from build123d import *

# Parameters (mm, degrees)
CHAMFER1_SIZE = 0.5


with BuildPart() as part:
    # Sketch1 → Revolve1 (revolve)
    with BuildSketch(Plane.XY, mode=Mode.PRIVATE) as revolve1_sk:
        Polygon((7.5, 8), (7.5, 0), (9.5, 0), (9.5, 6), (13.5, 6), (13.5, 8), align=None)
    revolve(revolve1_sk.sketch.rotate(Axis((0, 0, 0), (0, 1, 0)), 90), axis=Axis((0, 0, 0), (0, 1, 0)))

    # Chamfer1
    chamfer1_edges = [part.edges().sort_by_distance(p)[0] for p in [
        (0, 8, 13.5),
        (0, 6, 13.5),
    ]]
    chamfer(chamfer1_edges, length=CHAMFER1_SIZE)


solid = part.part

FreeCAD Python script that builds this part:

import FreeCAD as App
import Part
import Sketcher
Q = App.Units.Quantity


def edges_at(feature, points):
    """Names of the edges that pass closest to the given points."""
    edges = feature.Shape.Edges
    near = lambda p: min(range(len(edges)), key=lambda i: edges[i].distToShape(Part.Vertex(*p))[0])
    return sorted({f"Edge{near(p) + 1}" for p in points})

doc = App.newDocument("Part")
body = doc.addObject("PartDesign::Body", "Body")

# Sketch on XY plane
sketch1 = body.newObject("Sketcher::SketchObject", "Sketch")
sketch1.AttachmentSupport = (doc.getObject("XY_Plane"), [""])
sketch1.MapMode = "FlatFace"
sketch1.addGeometry([
    Part.LineSegment(App.Vector(7.5, 8, 0), App.Vector(7.5, 0, 0)),  # 0
    Part.LineSegment(App.Vector(7.5, 0, 0), App.Vector(9.5, 0, 0)),  # 1
    Part.LineSegment(App.Vector(9.5, 0, 0), App.Vector(9.5, 6, 0)),  # 2
    Part.LineSegment(App.Vector(9.5, 6, 0), App.Vector(13.5, 6, 0)),  # 3
    Part.LineSegment(App.Vector(13.5, 6, 0), App.Vector(13.5, 8, 0)),  # 4
    Part.LineSegment(App.Vector(13.5, 8, 0), App.Vector(7.5, 8, 0)),  # 5
], False)
sketch1.addConstraint([
    Sketcher.Constraint("Coincident", 0, 2, 1, 1),
    Sketcher.Constraint("Coincident", 1, 2, 2, 1),
    Sketcher.Constraint("Coincident", 2, 2, 3, 1),
    Sketcher.Constraint("Coincident", 3, 2, 4, 1),
    Sketcher.Constraint("Coincident", 4, 2, 5, 1),
    Sketcher.Constraint("Coincident", 5, 2, 0, 1),
    Sketcher.Constraint("Vertical", 0),
    Sketcher.Constraint("Horizontal", 1),
    Sketcher.Constraint("Vertical", 2),
    Sketcher.Constraint("Horizontal", 3),
    Sketcher.Constraint("Vertical", 4),
    Sketcher.Constraint("Horizontal", 5),
    Sketcher.Constraint("PointOnObject", 0, 2, -1),
    Sketcher.Constraint("Equal", 5, 2),
    Sketcher.Constraint("Equal", 1, 4),
    Sketcher.Constraint("DistanceX", 1, 1, 1, 2, Q("2 mm")),
    Sketcher.Constraint("DistanceX", 3, 1, 3, 2, Q("4 mm")),
    Sketcher.Constraint("DistanceX", -1, 1, 0, 2, Q("7.5 mm")),
])
revolution = body.newObject("PartDesign::Revolution", "Revolution")
revolution.Profile = sketch1
revolution.ReferenceAxis = (sketch1, ["V_Axis"])
revolution.Angle = 360
doc.recompute()

chamfer = body.newObject("PartDesign::Chamfer", "Chamfer")
chamfer.Base = (revolution, edges_at(revolution, [(0, 8, 13.5), (0, 6, 13.5)]))
chamfer.Size = 0.5

doc.recompute()
